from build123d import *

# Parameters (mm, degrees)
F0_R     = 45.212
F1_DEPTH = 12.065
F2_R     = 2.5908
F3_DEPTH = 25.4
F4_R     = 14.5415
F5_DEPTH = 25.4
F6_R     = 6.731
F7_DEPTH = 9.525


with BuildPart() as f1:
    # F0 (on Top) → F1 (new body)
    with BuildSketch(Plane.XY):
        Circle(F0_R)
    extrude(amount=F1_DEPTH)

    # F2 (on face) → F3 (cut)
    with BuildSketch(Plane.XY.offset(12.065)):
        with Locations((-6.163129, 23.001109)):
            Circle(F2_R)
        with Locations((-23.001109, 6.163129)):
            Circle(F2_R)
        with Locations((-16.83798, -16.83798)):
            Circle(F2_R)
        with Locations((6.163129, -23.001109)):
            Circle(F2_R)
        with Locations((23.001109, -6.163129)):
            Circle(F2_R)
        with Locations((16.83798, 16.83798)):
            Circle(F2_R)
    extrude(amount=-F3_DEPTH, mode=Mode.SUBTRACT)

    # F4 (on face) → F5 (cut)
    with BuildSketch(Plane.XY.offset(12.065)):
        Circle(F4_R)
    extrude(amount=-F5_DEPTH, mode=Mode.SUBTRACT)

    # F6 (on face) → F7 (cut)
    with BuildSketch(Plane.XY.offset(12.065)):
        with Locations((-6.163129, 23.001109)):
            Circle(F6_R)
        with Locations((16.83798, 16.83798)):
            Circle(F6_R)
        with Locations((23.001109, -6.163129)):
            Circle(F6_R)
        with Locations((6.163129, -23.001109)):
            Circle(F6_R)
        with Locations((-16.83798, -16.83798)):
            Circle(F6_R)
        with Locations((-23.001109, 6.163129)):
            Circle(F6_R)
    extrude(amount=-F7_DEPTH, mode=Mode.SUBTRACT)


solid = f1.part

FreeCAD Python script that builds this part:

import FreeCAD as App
import Part
import Sketcher
from FreeCAD import Vector
Q = App.Units.Quantity

doc = App.newDocument("Part")
body = doc.addObject("PartDesign::Body", "Body")

# Sketch on XY plane
sketch1 = body.newObject("Sketcher::SketchObject", "Sketch")
sketch1.AttachmentSupport = (doc.getObject("XY_Plane"), [""])
sketch1.MapMode = "FlatFace"
sketch1.addGeometry(Part.Circle(Vector(0, 0, 0), Vector(0, 0, 1), 45), False)
sketch1.addConstraint(Sketcher.Constraint("Coincident", 0, 3, -1, 1))
sketch1.addConstraint(Sketcher.Constraint("Diameter", 0, Q("3.56 in")))
pad1 = body.newObject("PartDesign::Pad", "Pad")
pad1.Profile = sketch1
pad1.Length = Q("0.475 in")

# Sketch on XY plane
sketch2 = body.newObject("Sketcher::SketchObject", "Sketch001")
sketch2.AttachmentSupport = (doc.getObject("XY_Plane"), [""])
sketch2.MapMode = "FlatFace"
sketch2.AttachmentOffset = App.Placement(Vector(0, 0, 0.475 * 25.4), App.Rotation())
sketch2.addGeometry(Part.Circle(Vector(-6.2, 23, 0), Vector(0, 0, 1), 2.6), False)
sketch2.addGeometry(Part.Circle(Vector(-23, 6.2, 0), Vector(0, 0, 1), 2.6), False)
sketch2.addGeometry(Part.Circle(Vector(-16.8, -16.8, 0), Vector(0, 0, 1), 2.6), False)
sketch2.addGeometry(Part.Circle(Vector(6.2, -23, 0), Vector(0, 0, 1), 2.6), False)
sketch2.addGeometry(Part.Circle(Vector(23, -6.2, 0), Vector(0, 0, 1), 2.6), False)
sketch2.addGeometry(Part.Circle(Vector(16.8, 16.8, 0), Vector(0, 0, 1), 2.6), False)
sketch2.addConstraint(Sketcher.Constraint("Equal", 0, 1))
sketch2.addConstraint(Sketcher.Constraint("Equal", 1, 2))
sketch2.addConstraint(Sketcher.Constraint("Equal", 2, 3))
sketch2.addConstraint(Sketcher.Constraint("Equal", 3, 4))
sketch2.addConstraint(Sketcher.Constraint("Equal", 4, 5))
sketch2.addConstraint(Sketcher.Constraint("Symmetric", 0, 3, 3, 3, -1, 1))
sketch2.addConstraint(Sketcher.Constraint("Symmetric", 1, 3, 4, 3, -1, 1))
sketch2.addConstraint(Sketcher.Constraint("Symmetric", 2, 3, 5, 3, -1, 1))
sketch2.addConstraint(Sketcher.Constraint("Diameter", 0, Q("0.204 in")))
sketch2.addConstraint(Sketcher.Constraint("DistanceX", 0, 3, -1, 1, Q("6.163129 mm")))
sketch2.addConstraint(Sketcher.Constraint("DistanceY", -1, 1, 0, 3, Q("23.001109 mm")))
sketch2.addConstraint(Sketcher.Constraint("DistanceX", 1, 3, -1, 1, Q("23.001109 mm")))
sketch2.addConstraint(Sketcher.Constraint("DistanceY", -1, 1, 1, 3, Q("6.163129 mm")))
sketch2.addConstraint(Sketcher.Constraint("DistanceX", 2, 3, -1, 1, Q("16.83798 mm")))
sketch2.addConstraint(Sketcher.Constraint("DistanceY", 2, 3, -1, 1, Q("16.83798 mm")))
pocket1 = body.newObject("PartDesign::Pocket", "Pocket")
pocket1.Profile = sketch2
pocket1.Length = Q("1 in")

# Sketch on XY plane
sketch3 = body.newObject("Sketcher::SketchObject", "Sketch002")
sketch3.AttachmentSupport = (doc.getObject("XY_Plane"), [""])
sketch3.MapMode = "FlatFace"
sketch3.AttachmentOffset = App.Placement(Vector(0, 0, 0.475 * 25.4), App.Rotation())
sketch3.addGeometry(Part.Circle(Vector(0, 0, 0), Vector(0, 0, 1), 15), False)
sketch3.addConstraint(Sketcher.Constraint("Coincident", 0, 3, -1, 1))
sketch3.addConstraint(Sketcher.Constraint("Diameter", 0, Q("1.145 in")))
pocket2 = body.newObject("PartDesign::Pocket", "Pocket001")
pocket2.Profile = sketch3
pocket2.Length = Q("1 in")

# Sketch on XY plane
sketch4 = body.newObject("Sketcher::SketchObject", "Sketch003")
sketch4.AttachmentSupport = (doc.getObject("XY_Plane"), [""])
sketch4.MapMode = "FlatFace"
sketch4.AttachmentOffset = App.Placement(Vector(0, 0, 0.475 * 25.4), App.Rotation())
sketch4.addGeometry(Part.Circle(Vector(-6, 23, 0), Vector(0, 0, 1), 7), False)
sketch4.addGeometry(Part.Circle(Vector(17, 17, 0), Vector(0, 0, 1), 7), False)
sketch4.addGeometry(Part.Circle(Vector(23, -6, 0), Vector(0, 0, 1), 7), False)
sketch4.addGeometry(Part.Circle(Vector(6, -23, 0), Vector(0, 0, 1), 7), False)
sketch4.addGeometry(Part.Circle(Vector(-17, -17, 0), Vector(0, 0, 1), 7), False)
sketch4.addGeometry(Part.Circle(Vector(-23, 6, 0), Vector(0, 0, 1), 7), False)
sketch4.addConstraint(Sketcher.Constraint("Equal", 0, 1))
sketch4.addConstraint(Sketcher.Constraint("Equal", 1, 2))
sketch4.addConstraint(Sketcher.Constraint("Equal", 2, 3))
sketch4.addConstraint(Sketcher.Constraint("Equal", 3, 4))
sketch4.addConstraint(Sketcher.Constraint("Equal", 4, 5))
sketch4.addConstraint(Sketcher.Constraint("Symmetric", 0, 3, 3, 3, -1, 1))
sketch4.addConstraint(Sketcher.Constraint("Symmetric", 1, 3, 4, 3, -1, 1))
sketch4.addConstraint(Sketcher.Constraint("Symmetric", 2, 3, 5, 3, -1, 1))
sketch4.addConstraint(Sketcher.Constraint("Diameter", 0, Q("0.53 in")))
sketch4.addConstraint(Sketcher.Constraint("DistanceX", 0, 3, -1, 1, Q("6.163129 mm")))
sketch4.addConstraint(Sketcher.Constraint("DistanceY", -1, 1, 0, 3, Q("23.001109 mm")))
sketch4.addConstraint(Sketcher.Constraint("DistanceX", -1, 1, 1, 3, Q("16.83798 mm")))
sketch4.addConstraint(Sketcher.Constraint("DistanceY", -1, 1, 1, 3, Q("16.83798 mm")))
sketch4.addConstraint(Sketcher.Constraint("DistanceX", -1, 1, 2, 3, Q("23.001109 mm")))
sketch4.addConstraint(Sketcher.Constraint("DistanceY", 2, 3, -1, 1, Q("6.163129 mm")))
pocket3 = body.newObject("PartDesign::Pocket", "Pocket002")
pocket3.Profile = sketch4
pocket3.Length = Q("0.375 in")

doc.recompute()
